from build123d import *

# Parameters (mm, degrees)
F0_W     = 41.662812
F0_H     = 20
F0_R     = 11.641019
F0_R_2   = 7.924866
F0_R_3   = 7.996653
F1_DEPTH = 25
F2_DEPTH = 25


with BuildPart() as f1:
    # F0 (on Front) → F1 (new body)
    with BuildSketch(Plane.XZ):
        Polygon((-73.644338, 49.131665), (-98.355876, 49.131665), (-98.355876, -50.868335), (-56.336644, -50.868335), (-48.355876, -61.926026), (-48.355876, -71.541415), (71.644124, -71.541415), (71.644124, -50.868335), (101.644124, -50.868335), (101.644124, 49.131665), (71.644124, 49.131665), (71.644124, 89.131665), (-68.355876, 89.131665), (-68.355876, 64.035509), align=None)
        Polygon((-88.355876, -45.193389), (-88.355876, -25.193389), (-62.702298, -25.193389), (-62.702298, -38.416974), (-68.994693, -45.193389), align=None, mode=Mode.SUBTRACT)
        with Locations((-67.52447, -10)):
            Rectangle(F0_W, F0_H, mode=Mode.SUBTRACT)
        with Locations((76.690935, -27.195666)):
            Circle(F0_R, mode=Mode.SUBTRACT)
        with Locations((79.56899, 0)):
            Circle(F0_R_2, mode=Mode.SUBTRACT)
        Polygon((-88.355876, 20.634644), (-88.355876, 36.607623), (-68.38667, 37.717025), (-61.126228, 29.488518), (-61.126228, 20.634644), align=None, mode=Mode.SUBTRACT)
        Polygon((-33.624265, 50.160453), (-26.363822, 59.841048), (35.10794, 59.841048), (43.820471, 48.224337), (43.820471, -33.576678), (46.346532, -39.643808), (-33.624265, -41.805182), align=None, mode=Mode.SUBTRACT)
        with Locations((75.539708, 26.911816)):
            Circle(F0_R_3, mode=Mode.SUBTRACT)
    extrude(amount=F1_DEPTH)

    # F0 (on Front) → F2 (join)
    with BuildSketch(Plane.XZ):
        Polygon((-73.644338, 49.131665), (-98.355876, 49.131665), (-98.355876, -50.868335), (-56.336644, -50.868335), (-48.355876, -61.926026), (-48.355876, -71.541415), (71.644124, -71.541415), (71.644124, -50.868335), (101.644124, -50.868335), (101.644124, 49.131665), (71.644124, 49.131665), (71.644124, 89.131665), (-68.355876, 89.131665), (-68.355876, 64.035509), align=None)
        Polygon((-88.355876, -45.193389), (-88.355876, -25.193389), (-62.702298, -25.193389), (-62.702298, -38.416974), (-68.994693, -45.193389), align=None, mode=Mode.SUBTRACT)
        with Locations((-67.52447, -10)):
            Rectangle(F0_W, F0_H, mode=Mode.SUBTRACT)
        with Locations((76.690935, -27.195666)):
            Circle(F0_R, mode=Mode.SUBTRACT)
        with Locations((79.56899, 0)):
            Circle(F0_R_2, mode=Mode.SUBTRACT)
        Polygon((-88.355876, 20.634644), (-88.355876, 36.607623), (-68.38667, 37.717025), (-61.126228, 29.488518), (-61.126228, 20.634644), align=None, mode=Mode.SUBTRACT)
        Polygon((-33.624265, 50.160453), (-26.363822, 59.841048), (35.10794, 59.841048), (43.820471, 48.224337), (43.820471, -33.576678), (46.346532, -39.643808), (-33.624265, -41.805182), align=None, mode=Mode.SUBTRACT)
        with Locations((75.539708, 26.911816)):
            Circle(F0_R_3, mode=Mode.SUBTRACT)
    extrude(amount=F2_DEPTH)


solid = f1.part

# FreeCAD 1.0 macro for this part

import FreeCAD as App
import Part
import Sketcher
from FreeCAD import Vector

doc = App.newDocument("Part")
body = doc.addObject("PartDesign::Body", "Body")

sketch1 = body.newObject("Sketcher::SketchObject", "Sketch")
sketch1.AttachmentSupport = (doc.getObject("XZ_Plane"), [""])
sketch1.MapMode = "FlatFace"
sketch1.addGeometry([
    Part.LineSegment(Vector(-74, 49, 0), Vector(-98, 49, 0)),
    Part.LineSegment(Vector(-98, 49, 0), Vector(-98, -51, 0)),
    Part.LineSegment(Vector(-98, -51, 0), Vector(-56, -51, 0)),
    Part.LineSegment(Vector(-56, -51, 0), Vector(-48, -62, 0)),
    Part.LineSegment(Vector(-48, -62, 0), Vector(-48, -72, 0)),
    Part.LineSegment(Vector(-48, -72, 0), Vector(72, -72, 0)),
    Part.LineSegment(Vector(72, -72, 0), Vector(72, -51, 0)),
    Part.LineSegment(Vector(72, -51, 0), Vector(102, -51, 0)),
    Part.LineSegment(Vector(102, -51, 0), Vector(102, 49, 0)),
    Part.LineSegment(Vector(102, 49, 0), Vector(72, 49, 0)),
    Part.LineSegment(Vector(72, 49, 0), Vector(72, 89, 0)),
    Part.LineSegment(Vector(72, 89, 0), Vector(-68, 89, 0)),
    Part.LineSegment(Vector(-68, 89, 0), Vector(-68, 64, 0)),
    Part.LineSegment(Vector(-68, 64, 0), Vector(-74, 49, 0)),
    Part.LineSegment(Vector(-69, -45, 0), Vector(-88, -45, 0)),
    Part.LineSegment(Vector(-88, -45, 0), Vector(-88, -25, 0)),
    Part.LineSegment(Vector(-88, -25, 0), Vector(-63, -25, 0)),
    Part.LineSegment(Vector(-63, -25, 0), Vector(-63, -38, 0)),
    Part.LineSegment(Vector(-63, -38, 0), Vector(-69, -45, 0)),
    Part.LineSegment(Vector(-47, -20, 0), Vector(-88, -20, 0)),
    Part.LineSegment(Vector(-88, -20, 0), Vector(-88, 0, 0)),
    Part.LineSegment(Vector(-88, 0, 0), Vector(-47, 0, 0)),
    Part.LineSegment(Vector(-47, 0, 0), Vector(-47, -20, 0)),
    Part.Circle(Vector(77, -27, 0), Vector(0, 0, 1), 12),
    Part.Circle(Vector(80, 0, 0), Vector(0, 0, 1), 8),
    Part.LineSegment(Vector(-61, 21, 0), Vector(-88, 21, 0)),
    Part.LineSegment(Vector(-88, 21, 0), Vector(-88, 37, 0)),
    Part.LineSegment(Vector(-88, 37, 0), Vector(-68, 38, 0)),
    Part.LineSegment(Vector(-68, 38, 0), Vector(-61, 29, 0)),
    Part.LineSegment(Vector(-61, 29, 0), Vector(-61, 21, 0)),
    Part.LineSegment(Vector(-34, -42, 0), Vector(-34, 50, 0)),
    Part.LineSegment(Vector(-34, 50, 0), Vector(-26, 60, 0)),
    Part.LineSegment(Vector(-26, 60, 0), Vector(35, 60, 0)),
    Part.LineSegment(Vector(35, 60, 0), Vector(44, 48, 0)),
    Part.LineSegment(Vector(44, 48, 0), Vector(44, -34, 0)),
    Part.LineSegment(Vector(44, -34, 0), Vector(46, -40, 0)),
    Part.LineSegment(Vector(46, -40, 0), Vector(-34, -42, 0)),
    Part.Circle(Vector(76, 27, 0), Vector(0, 0, 1), 8),
], False)
sketch1.addConstraint([
    Sketcher.Constraint("Coincident", 0, 2, 1, 1),
    Sketcher.Constraint("Coincident", 1, 2, 2, 1),
    Sketcher.Constraint("Coincident", 2, 2, 3, 1),
    Sketcher.Constraint("Coincident", 3, 2, 4, 1),
    Sketcher.Constraint("Coincident", 4, 2, 5, 1),
    Sketcher.Constraint("Coincident", 5, 2, 6, 1),
    Sketcher.Constraint("Coincident", 6, 2, 7, 1),
    Sketcher.Constraint("Coincident", 7, 2, 8, 1),
    Sketcher.Constraint("Coincident", 8, 2, 9, 1),
    Sketcher.Constraint("Coincident", 9, 2, 10, 1),
    Sketcher.Constraint("Coincident", 10, 2, 11, 1),
    Sketcher.Constraint("Coincident", 11, 2, 12, 1),
    Sketcher.Constraint("Coincident", 12, 2, 13, 1),
    Sketcher.Constraint("Coincident", 13, 2, 0, 1),
    Sketcher.Constraint("Coincident", 14, 2, 15, 1),
    Sketcher.Constraint("Coincident", 15, 2, 16, 1),
    Sketcher.Constraint("Coincident", 16, 2, 17, 1),
    Sketcher.Constraint("Coincident", 17, 2, 18, 1),
    Sketcher.Constraint("Coincident", 18, 2, 14, 1),
    Sketcher.Constraint("Coincident", 19, 2, 20, 1),
    Sketcher.Constraint("Coincident", 20, 2, 21, 1),
    Sketcher.Constraint("Coincident", 21, 2, 22, 1),
    Sketcher.Constraint("Coincident", 22, 2, 19, 1),
    Sketcher.Constraint("Coincident", 25, 2, 26, 1),
    Sketcher.Constraint("Coincident", 26, 2, 27, 1),
    Sketcher.Constraint("Coincident", 27, 2, 28, 1),
    Sketcher.Constraint("Coincident", 28, 2, 29, 1),
    Sketcher.Constraint("Coincident", 29, 2, 25, 1),
    Sketcher.Constraint("Coincident", 30, 2, 31, 1),
    Sketcher.Constraint("Coincident", 31, 2, 32, 1),
    Sketcher.Constraint("Coincident", 32, 2, 33, 1),
    Sketcher.Constraint("Coincident", 33, 2, 34, 1),
    Sketcher.Constraint("Coincident", 34, 2, 35, 1),
    Sketcher.Constraint("Coincident", 35, 2, 36, 1),
    Sketcher.Constraint("Coincident", 36, 2, 30, 1),
    Sketcher.Constraint("Horizontal", 0),
    Sketcher.Constraint("Vertical", 1),
    Sketcher.Constraint("Horizontal", 2),
    Sketcher.Constraint("Vertical", 4),
    Sketcher.Constraint("Horizontal", 5),
    Sketcher.Constraint("Vertical", 6),
    Sketcher.Constraint("Horizontal", 7),
    Sketcher.Constraint("Vertical", 8),
    Sketcher.Constraint("Horizontal", 9),
    Sketcher.Constraint("Vertical", 10),
    Sketcher.Constraint("Horizontal", 11),
    Sketcher.Constraint("Vertical", 12),
    Sketcher.Constraint("Horizontal", 14),
    Sketcher.Constraint("Vertical", 15),
    Sketcher.Constraint("Horizontal", 16),
    Sketcher.Constraint("Vertical", 17),
    Sketcher.Constraint("Horizontal", 19),
    Sketcher.Constraint("Vertical", 20),
    Sketcher.Constraint("Horizontal", 21),
    Sketcher.Constraint("Vertical", 22),
    Sketcher.Constraint("Horizontal", 25),
    Sketcher.Constraint("Vertical", 26),
    Sketcher.Constraint("Vertical", 29),
    Sketcher.Constraint("Vertical", 30),
    Sketcher.Constraint("Horizontal", 32),
    Sketcher.Constraint("Vertical", 34),
    Sketcher.Constraint("PointOnObject", 24, 3, -1),
    Sketcher.Constraint("PointOnObject", 20, 2, -1),
    Sketcher.Constraint("Horizontal", 2, 2, 6, 2),
    Sketcher.Constraint("Horizontal", 0, 2, 8, 2),
    Sketcher.Constraint("Vertical", 6, 2, 9, 2),
    Sketcher.Constraint("Vertical", 15, 2, 19, 2),
    Sketcher.Constraint("Vertical", 20, 2, 25, 2),
    Sketcher.Constraint("Equal", 15, 20),
    Sketcher.Constraint("DistanceX", 5, 1, 5, 2, 120.0),
    Sketcher.Constraint("DistanceX", 7, 1, 7, 2, 30.0),
    Sketcher.Constraint("DistanceX", 11, 2, 11, 1, 140.0),
    Sketcher.Constraint("DistanceY", 1, 2, 1, 1, 100.0),
    Sketcher.Constraint("DistanceY", 10, 1, 10, 2, 40.0),
    Sketcher.Constraint("DistanceY", 15, 1, 15, 2, 20.0),
    Sketcher.Constraint("Distance", 27, 19.999999),
    Sketcher.Constraint("Distance", 36, 79.999999),
    Sketcher.Constraint("DistanceX", 1, 2, 3, 2, 50.0),
    Sketcher.Constraint("DistanceX", 1, 2, 14, 2, 10.0),
    Sketcher.Constraint("Diameter", 23, 23.282038),
    Sketcher.Constraint("Diameter", 24, 15.849732),
    Sketcher.Constraint("Diameter", 37, 15.993306),
    Sketcher.Constraint("DistanceX", 2, 1, 2, 2, 42.019232),
    Sketcher.Constraint("DistanceX", 19, 2, 19, 1, 41.662812),
    Sketcher.Constraint("DistanceX", 32, 1, 32, 2, 61.471762),
    Sketcher.Constraint("DistanceY", 4, 2, 4, 1, 9.615389),
    Sketcher.Constraint("DistanceY", 6, 1, 6, 2, 20.67308),
    Sketcher.Constraint("DistanceY", 26, 1, 26, 2, 15.972979),
    Sketcher.Constraint("DistanceX", 22, 2, 36, 2, 13.068799),
    Sketcher.Constraint("Distance", 13, 15.81431),
    Sketcher.Constraint("Distance", 18, 9.24738),
    Sketcher.Constraint("Distance", 28, 10.973712),
    Sketcher.Constraint("Distance", 31, 12.100742),
    Sketcher.Constraint("Distance", 35, 6.57199),
    Sketcher.Constraint("DistanceX", 0, 2, 0, 1, 24.711538),
    Sketcher.Constraint("DistanceX", 14, 2, 14, 1, 19.361183),
    Sketcher.Constraint("DistanceX", 16, 1, 16, 2, 25.653578),
    Sketcher.Constraint("DistanceX", 25, 2, 25, 1, 27.229648),
    Sketcher.Constraint("DistanceY", 29, 2, 29, 1, 8.853874),
    Sketcher.Constraint("DistanceY", 30, 1, 30, 2, 91.965635),
    Sketcher.Constraint("DistanceY", 34, 2, 34, 1, 81.801015),
    Sketcher.Constraint("DistanceX", -1, 1, 24, 3, 79.56899),
    Sketcher.Constraint("DistanceX", -1, 1, 37, 3, 75.539708),
    Sketcher.Constraint("DistanceY", -1, 1, 12, 2, 64.035509),
    Sketcher.Constraint("DistanceX", 13, 2, -1, 1, 73.644338),
    Sketcher.Constraint("DistanceY", 14, 2, -1, 1, 45.193389),
    Sketcher.Constraint("DistanceX", 31, 2, -1, 1, 26.363822),
    Sketcher.Constraint("DistanceX", -1, 1, 33, 2, 43.820471),
    Sketcher.Constraint("DistanceY", 37, 3, 0, 2, 22.219849),
    Sketcher.Constraint("DistanceX", 0, 2, 23, 3, 175.046811),
    Sketcher.Constraint("DistanceY", 23, 3, 0, 2, 76.327331),
    Sketcher.Constraint("DistanceY", 25, 2, 0, 2, 28.497021),
    Sketcher.Constraint("DistanceY", 29, 2, 30, 2, 29.525809),
    Sketcher.Constraint("DistanceY", 33, 2, 32, 2, 11.616711),
])
pad1 = body.newObject("PartDesign::Pad", "Pad")
pad1.Profile = sketch1
pad1.Length = 25

sketch2 = body.newObject("Sketcher::SketchObject", "Sketch001")
sketch2.AttachmentSupport = (doc.getObject("XZ_Plane"), [""])
sketch2.MapMode = "FlatFace"
sketch2.addGeometry([
    Part.LineSegment(Vector(-74, 49, 0), Vector(-98, 49, 0)),
    Part.LineSegment(Vector(-98, 49, 0), Vector(-98, -51, 0)),
    Part.LineSegment(Vector(-98, -51, 0), Vector(-56, -51, 0)),
    Part.LineSegment(Vector(-56, -51, 0), Vector(-48, -62, 0)),
    Part.LineSegment(Vector(-48, -62, 0), Vector(-48, -72, 0)),
    Part.LineSegment(Vector(-48, -72, 0), Vector(72, -72, 0)),
    Part.LineSegment(Vector(72, -72, 0), Vector(72, -51, 0)),
    Part.LineSegment(Vector(72, -51, 0), Vector(102, -51, 0)),
    Part.LineSegment(Vector(102, -51, 0), Vector(102, 49, 0)),
    Part.LineSegment(Vector(102, 49, 0), Vector(72, 49, 0)),
    Part.LineSegment(Vector(72, 49, 0), Vector(72, 89, 0)),
    Part.LineSegment(Vector(72, 89, 0), Vector(-68, 89, 0)),
    Part.LineSegment(Vector(-68, 89, 0), Vector(-68, 64, 0)),
    Part.LineSegment(Vector(-68, 64, 0), Vector(-74, 49, 0)),
    Part.LineSegment(Vector(-69, -45, 0), Vector(-88, -45, 0)),
    Part.LineSegment(Vector(-88, -45, 0), Vector(-88, -25, 0)),
    Part.LineSegment(Vector(-88, -25, 0), Vector(-63, -25, 0)),
    Part.LineSegment(Vector(-63, -25, 0), Vector(-63, -38, 0)),
    Part.LineSegment(Vector(-63, -38, 0), Vector(-69, -45, 0)),
    Part.LineSegment(Vector(-47, -20, 0), Vector(-88, -20, 0)),
    Part.LineSegment(Vector(-88, -20, 0), Vector(-88, 0, 0)),
    Part.LineSegment(Vector(-88, 0, 0), Vector(-47, 0, 0)),
    Part.LineSegment(Vector(-47, 0, 0), Vector(-47, -20, 0)),
    Part.Circle(Vector(77, -27, 0), Vector(0, 0, 1), 12),
    Part.Circle(Vector(80, 0, 0), Vector(0, 0, 1), 8),
    Part.LineSegment(Vector(-61, 21, 0), Vector(-88, 21, 0)),
    Part.LineSegment(Vector(-88, 21, 0), Vector(-88, 37, 0)),
    Part.LineSegment(Vector(-88, 37, 0), Vector(-68, 38, 0)),
    Part.LineSegment(Vector(-68, 38, 0), Vector(-61, 29, 0)),
    Part.LineSegment(Vector(-61, 29, 0), Vector(-61, 21, 0)),
    Part.LineSegment(Vector(-34, -42, 0), Vector(-34, 50, 0)),
    Part.LineSegment(Vector(-34, 50, 0), Vector(-26, 60, 0)),
    Part.LineSegment(Vector(-26, 60, 0), Vector(35, 60, 0)),
    Part.LineSegment(Vector(35, 60, 0), Vector(44, 48, 0)),
    Part.LineSegment(Vector(44, 48, 0), Vector(44, -34, 0)),
    Part.LineSegment(Vector(44, -34, 0), Vector(46, -40, 0)),
    Part.LineSegment(Vector(46, -40, 0), Vector(-34, -42, 0)),
    Part.Circle(Vector(76, 27, 0), Vector(0, 0, 1), 8),
], False)
sketch2.addConstraint([
    Sketcher.Constraint("Coincident", 0, 2, 1, 1),
    Sketcher.Constraint("Coincident", 1, 2, 2, 1),
    Sketcher.Constraint("Coincident", 2, 2, 3, 1),
    Sketcher.Constraint("Coincident", 3, 2, 4, 1),
    Sketcher.Constraint("Coincident", 4, 2, 5, 1),
    Sketcher.Constraint("Coincident", 5, 2, 6, 1),
    Sketcher.Constraint("Coincident", 6, 2, 7, 1),
    Sketcher.Constraint("Coincident", 7, 2, 8, 1),
    Sketcher.Constraint("Coincident", 8, 2, 9, 1),
    Sketcher.Constraint("Coincident", 9, 2, 10, 1),
    Sketcher.Constraint("Coincident", 10, 2, 11, 1),
    Sketcher.Constraint("Coincident", 11, 2, 12, 1),
    Sketcher.Constraint("Coincident", 12, 2, 13, 1),
    Sketcher.Constraint("Coincident", 13, 2, 0, 1),
    Sketcher.Constraint("Coincident", 14, 2, 15, 1),
    Sketcher.Constraint("Coincident", 15, 2, 16, 1),
    Sketcher.Constraint("Coincident", 16, 2, 17, 1),
    Sketcher.Constraint("Coincident", 17, 2, 18, 1),
    Sketcher.Constraint("Coincident", 18, 2, 14, 1),
    Sketcher.Constraint("Coincident", 19, 2, 20, 1),
    Sketcher.Constraint("Coincident", 20, 2, 21, 1),
    Sketcher.Constraint("Coincident", 21, 2, 22, 1),
    Sketcher.Constraint("Coincident", 22, 2, 19, 1),
    Sketcher.Constraint("Coincident", 25, 2, 26, 1),
    Sketcher.Constraint("Coincident", 26, 2, 27, 1),
    Sketcher.Constraint("Coincident", 27, 2, 28, 1),
    Sketcher.Constraint("Coincident", 28, 2, 29, 1),
    Sketcher.Constraint("Coincident", 29, 2, 25, 1),
    Sketcher.Constraint("Coincident", 30, 2, 31, 1),
    Sketcher.Constraint("Coincident", 31, 2, 32, 1),
    Sketcher.Constraint("Coincident", 32, 2, 33, 1),
    Sketcher.Constraint("Coincident", 33, 2, 34, 1),
    Sketcher.Constraint("Coincident", 34, 2, 35, 1),
    Sketcher.Constraint("Coincident", 35, 2, 36, 1),
    Sketcher.Constraint("Coincident", 36, 2, 30, 1),
    Sketcher.Constraint("Horizontal", 0),
    Sketcher.Constraint("Vertical", 1),
    Sketcher.Constraint("Horizontal", 2),
    Sketcher.Constraint("Vertical", 4),
    Sketcher.Constraint("Horizontal", 5),
    Sketcher.Constraint("Vertical", 6),
    Sketcher.Constraint("Horizontal", 7),
    Sketcher.Constraint("Vertical", 8),
    Sketcher.Constraint("Horizontal", 9),
    Sketcher.Constraint("Vertical", 10),
    Sketcher.Constraint("Horizontal", 11),
    Sketcher.Constraint("Vertical", 12),
    Sketcher.Constraint("Horizontal", 14),
    Sketcher.Constraint("Vertical", 15),
    Sketcher.Constraint("Horizontal", 16),
    Sketcher.Constraint("Vertical", 17),
    Sketcher.Constraint("Horizontal", 19),
    Sketcher.Constraint("Vertical", 20),
    Sketcher.Constraint("Horizontal", 21),
    Sketcher.Constraint("Vertical", 22),
    Sketcher.Constraint("Horizontal", 25),
    Sketcher.Constraint("Vertical", 26),
    Sketcher.Constraint("Vertical", 29),
    Sketcher.Constraint("Vertical", 30),
    Sketcher.Constraint("Horizontal", 32),
    Sketcher.Constraint("Vertical", 34),
    Sketcher.Constraint("PointOnObject", 24, 3, -1),
    Sketcher.Constraint("PointOnObject", 20, 2, -1),
    Sketcher.Constraint("Horizontal", 2, 2, 6, 2),
    Sketcher.Constraint("Horizontal", 0, 2, 8, 2),
    Sketcher.Constraint("Vertical", 6, 2, 9, 2),
    Sketcher.Constraint("Vertical", 15, 2, 19, 2),
    Sketcher.Constraint("Vertical", 20, 2, 25, 2),
    Sketcher.Constraint("Equal", 15, 20),
    Sketcher.Constraint("DistanceX", 5, 1, 5, 2, 120.0),
    Sketcher.Constraint("DistanceX", 7, 1, 7, 2, 30.0),
    Sketcher.Constraint("DistanceX", 11, 2, 11, 1, 140.0),
    Sketcher.Constraint("DistanceY", 1, 2, 1, 1, 100.0),
    Sketcher.Constraint("DistanceY", 10, 1, 10, 2, 40.0),
    Sketcher.Constraint("DistanceY", 15, 1, 15, 2, 20.0),
    Sketcher.Constraint("Distance", 27, 19.999999),
    Sketcher.Constraint("Distance", 36, 79.999999),
    Sketcher.Constraint("DistanceX", 1, 2, 3, 2, 50.0),
    Sketcher.Constraint("DistanceX", 1, 2, 14, 2, 10.0),
    Sketcher.Constraint("Diameter", 23, 23.282038),
    Sketcher.Constraint("Diameter", 24, 15.849732),
    Sketcher.Constraint("Diameter", 37, 15.993306),
    Sketcher.Constraint("DistanceX", 2, 1, 2, 2, 42.019232),
    Sketcher.Constraint("DistanceX", 19, 2, 19, 1, 41.662812),
    Sketcher.Constraint("DistanceX", 32, 1, 32, 2, 61.471762),
    Sketcher.Constraint("DistanceY", 4, 2, 4, 1, 9.615389),
    Sketcher.Constraint("DistanceY", 6, 1, 6, 2, 20.67308),
    Sketcher.Constraint("DistanceY", 26, 1, 26, 2, 15.972979),
    Sketcher.Constraint("DistanceX", 22, 2, 36, 2, 13.068799),
    Sketcher.Constraint("Distance", 13, 15.81431),
    Sketcher.Constraint("Distance", 18, 9.24738),
    Sketcher.Constraint("Distance", 28, 10.973712),
    Sketcher.Constraint("Distance", 31, 12.100742),
    Sketcher.Constraint("Distance", 35, 6.57199),
    Sketcher.Constraint("DistanceX", 0, 2, 0, 1, 24.711538),
    Sketcher.Constraint("DistanceX", 14, 2, 14, 1, 19.361183),
    Sketcher.Constraint("DistanceX", 16, 1, 16, 2, 25.653578),
    Sketcher.Constraint("DistanceX", 25, 2, 25, 1, 27.229648),
    Sketcher.Constraint("DistanceY", 29, 2, 29, 1, 8.853874),
    Sketcher.Constraint("DistanceY", 30, 1, 30, 2, 91.965635),
    Sketcher.Constraint("DistanceY", 34, 2, 34, 1, 81.801015),
    Sketcher.Constraint("DistanceX", -1, 1, 24, 3, 79.56899),
    Sketcher.Constraint("DistanceX", -1, 1, 37, 3, 75.539708),
    Sketcher.Constraint("DistanceY", -1, 1, 12, 2, 64.035509),
    Sketcher.Constraint("DistanceX", 13, 2, -1, 1, 73.644338),
    Sketcher.Constraint("DistanceY", 14, 2, -1, 1, 45.193389),
    Sketcher.Constraint("DistanceX", 31, 2, -1, 1, 26.363822),
    Sketcher.Constraint("DistanceX", -1, 1, 33, 2, 43.820471),
    Sketcher.Constraint("DistanceY", 37, 3, 0, 2, 22.219849),
    Sketcher.Constraint("DistanceX", 0, 2, 23, 3, 175.046811),
    Sketcher.Constraint("DistanceY", 23, 3, 0, 2, 76.327331),
    Sketcher.Constraint("DistanceY", 25, 2, 0, 2, 28.497021),
    Sketcher.Constraint("DistanceY", 29, 2, 30, 2, 29.525809),
    Sketcher.Constraint("DistanceY", 33, 2, 32, 2, 11.616711),
])
pad2 = body.newObject("PartDesign::Pad", "Pad001")
pad2.Profile = sketch2
pad2.Length = 25

doc.recompute()
